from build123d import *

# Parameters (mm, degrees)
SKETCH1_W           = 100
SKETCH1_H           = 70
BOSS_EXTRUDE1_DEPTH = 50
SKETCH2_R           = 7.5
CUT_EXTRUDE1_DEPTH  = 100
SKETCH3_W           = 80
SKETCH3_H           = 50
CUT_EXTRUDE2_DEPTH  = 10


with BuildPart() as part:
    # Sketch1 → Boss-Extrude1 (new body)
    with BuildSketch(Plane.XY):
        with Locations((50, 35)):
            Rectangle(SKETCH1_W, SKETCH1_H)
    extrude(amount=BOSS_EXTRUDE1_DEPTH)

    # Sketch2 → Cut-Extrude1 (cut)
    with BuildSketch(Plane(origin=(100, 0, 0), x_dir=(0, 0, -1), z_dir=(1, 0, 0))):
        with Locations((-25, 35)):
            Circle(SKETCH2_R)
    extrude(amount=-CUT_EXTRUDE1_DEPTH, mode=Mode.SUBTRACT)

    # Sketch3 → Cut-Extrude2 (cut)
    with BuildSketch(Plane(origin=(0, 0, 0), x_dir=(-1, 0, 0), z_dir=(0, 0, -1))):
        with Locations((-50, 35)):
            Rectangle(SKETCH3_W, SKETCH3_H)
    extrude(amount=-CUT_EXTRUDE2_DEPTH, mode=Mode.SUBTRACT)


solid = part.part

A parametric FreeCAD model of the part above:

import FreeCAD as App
import Part
import Sketcher
Q = App.Units.Quantity

doc = App.newDocument("Part")
body = doc.addObject("PartDesign::Body", "Body")

sketch1 = body.newObject("Sketcher::SketchObject", "Sketch")
sketch1.AttachmentSupport = (doc.getObject("XY_Plane"), [""])
sketch1.MapMode = "FlatFace"
sketch1.addGeometry([
    Part.LineSegment(App.Vector(0, 70, 0), App.Vector(0, 0, 0)),
    Part.LineSegment(App.Vector(0, 0, 0), App.Vector(100, 0, 0)),
    Part.LineSegment(App.Vector(100, 0, 0), App.Vector(100, 70, 0)),
    Part.LineSegment(App.Vector(100, 70, 0), App.Vector(0, 70, 0)),
], False)
sketch1.addConstraint([
    Sketcher.Constraint("Coincident", 0, 2, 1, 1),
    Sketcher.Constraint("Coincident", 1, 2, 2, 1),
    Sketcher.Constraint("Coincident", 2, 2, 3, 1),
    Sketcher.Constraint("Coincident", 3, 2, 0, 1),
    Sketcher.Constraint("Vertical", 0),
    Sketcher.Constraint("Horizontal", 1),
    Sketcher.Constraint("Vertical", 2),
    Sketcher.Constraint("Horizontal", 3),
    Sketcher.Constraint("Coincident", 0, 2, -1, 1),
    Sketcher.Constraint("DistanceX", 1, 1, 1, 2, Q("100 mm")),
    Sketcher.Constraint("DistanceY", 0, 2, 0, 1, Q("70 mm")),
])
pad1 = body.newObject("PartDesign::Pad", "Pad")
pad1.Profile = sketch1
pad1.Length = 50

sketch2 = body.newObject("Sketcher::SketchObject", "Sketch001")
sketch2.AttachmentSupport = (doc.getObject("YZ_Plane"), [""])
sketch2.MapMode = "FlatFace"
sketch2.AttachmentOffset = App.Placement(App.Vector(0, 0, 100), App.Rotation())
sketch2.addGeometry(Part.Circle(App.Vector(35, 25, 0), App.Vector(0, 0, 1), 8), False)
sketch2.addConstraint([
    Sketcher.Constraint("Diameter", 0, Q("15 mm")),
    Sketcher.Constraint("DistanceX", -1, 1, 0, 3, Q("35 mm")),
    Sketcher.Constraint("DistanceY", -1, 1, 0, 3, Q("25 mm")),
])
pocket1 = body.newObject("PartDesign::Pocket", "Pocket")
pocket1.Profile = sketch2
pocket1.Length = 100

sketch3 = body.newObject("Sketcher::SketchObject", "Sketch002")
sketch3.AttachmentSupport = (doc.getObject("XY_Plane"), [""])
sketch3.MapMode = "FlatFace"
sketch3.addGeometry([
    Part.LineSegment(App.Vector(90, 60, 0), App.Vector(90, 10, 0)),
    Part.LineSegment(App.Vector(90, 10, 0), App.Vector(10, 10, 0)),
    Part.LineSegment(App.Vector(10, 10, 0), App.Vector(10, 60, 0)),
    Part.LineSegment(App.Vector(10, 60, 0), App.Vector(90, 60, 0)),
], False)
sketch3.addConstraint([
    Sketcher.Constraint("Coincident", 0, 2, 1, 1),
    Sketcher.Constraint("Coincident", 1, 2, 2, 1),
    Sketcher.Constraint("Coincident", 2, 2, 3, 1),
    Sketcher.Constraint("Coincident", 3, 2, 0, 1),
    Sketcher.Constraint("Vertical", 0),
    Sketcher.Constraint("Horizontal", 1),
    Sketcher.Constraint("Vertical", 2),
    Sketcher.Constraint("Horizontal", 3),
    Sketcher.Constraint("DistanceX", 1, 2, 1, 1, Q("80 mm")),
    Sketcher.Constraint("DistanceY", 0, 2, 0, 1, Q("50 mm")),
    Sketcher.Constraint("DistanceX", -1, 1, 0, 2, Q("90 mm")),
    Sketcher.Constraint("DistanceY", -1, 1, 0, 2, Q("10 mm")),
])
pocket2 = body.newObject("PartDesign::Pocket", "Pocket001")
pocket2.Profile = sketch3
pocket2.Length = 10
pocket2.Reversed = True

doc.recompute()
